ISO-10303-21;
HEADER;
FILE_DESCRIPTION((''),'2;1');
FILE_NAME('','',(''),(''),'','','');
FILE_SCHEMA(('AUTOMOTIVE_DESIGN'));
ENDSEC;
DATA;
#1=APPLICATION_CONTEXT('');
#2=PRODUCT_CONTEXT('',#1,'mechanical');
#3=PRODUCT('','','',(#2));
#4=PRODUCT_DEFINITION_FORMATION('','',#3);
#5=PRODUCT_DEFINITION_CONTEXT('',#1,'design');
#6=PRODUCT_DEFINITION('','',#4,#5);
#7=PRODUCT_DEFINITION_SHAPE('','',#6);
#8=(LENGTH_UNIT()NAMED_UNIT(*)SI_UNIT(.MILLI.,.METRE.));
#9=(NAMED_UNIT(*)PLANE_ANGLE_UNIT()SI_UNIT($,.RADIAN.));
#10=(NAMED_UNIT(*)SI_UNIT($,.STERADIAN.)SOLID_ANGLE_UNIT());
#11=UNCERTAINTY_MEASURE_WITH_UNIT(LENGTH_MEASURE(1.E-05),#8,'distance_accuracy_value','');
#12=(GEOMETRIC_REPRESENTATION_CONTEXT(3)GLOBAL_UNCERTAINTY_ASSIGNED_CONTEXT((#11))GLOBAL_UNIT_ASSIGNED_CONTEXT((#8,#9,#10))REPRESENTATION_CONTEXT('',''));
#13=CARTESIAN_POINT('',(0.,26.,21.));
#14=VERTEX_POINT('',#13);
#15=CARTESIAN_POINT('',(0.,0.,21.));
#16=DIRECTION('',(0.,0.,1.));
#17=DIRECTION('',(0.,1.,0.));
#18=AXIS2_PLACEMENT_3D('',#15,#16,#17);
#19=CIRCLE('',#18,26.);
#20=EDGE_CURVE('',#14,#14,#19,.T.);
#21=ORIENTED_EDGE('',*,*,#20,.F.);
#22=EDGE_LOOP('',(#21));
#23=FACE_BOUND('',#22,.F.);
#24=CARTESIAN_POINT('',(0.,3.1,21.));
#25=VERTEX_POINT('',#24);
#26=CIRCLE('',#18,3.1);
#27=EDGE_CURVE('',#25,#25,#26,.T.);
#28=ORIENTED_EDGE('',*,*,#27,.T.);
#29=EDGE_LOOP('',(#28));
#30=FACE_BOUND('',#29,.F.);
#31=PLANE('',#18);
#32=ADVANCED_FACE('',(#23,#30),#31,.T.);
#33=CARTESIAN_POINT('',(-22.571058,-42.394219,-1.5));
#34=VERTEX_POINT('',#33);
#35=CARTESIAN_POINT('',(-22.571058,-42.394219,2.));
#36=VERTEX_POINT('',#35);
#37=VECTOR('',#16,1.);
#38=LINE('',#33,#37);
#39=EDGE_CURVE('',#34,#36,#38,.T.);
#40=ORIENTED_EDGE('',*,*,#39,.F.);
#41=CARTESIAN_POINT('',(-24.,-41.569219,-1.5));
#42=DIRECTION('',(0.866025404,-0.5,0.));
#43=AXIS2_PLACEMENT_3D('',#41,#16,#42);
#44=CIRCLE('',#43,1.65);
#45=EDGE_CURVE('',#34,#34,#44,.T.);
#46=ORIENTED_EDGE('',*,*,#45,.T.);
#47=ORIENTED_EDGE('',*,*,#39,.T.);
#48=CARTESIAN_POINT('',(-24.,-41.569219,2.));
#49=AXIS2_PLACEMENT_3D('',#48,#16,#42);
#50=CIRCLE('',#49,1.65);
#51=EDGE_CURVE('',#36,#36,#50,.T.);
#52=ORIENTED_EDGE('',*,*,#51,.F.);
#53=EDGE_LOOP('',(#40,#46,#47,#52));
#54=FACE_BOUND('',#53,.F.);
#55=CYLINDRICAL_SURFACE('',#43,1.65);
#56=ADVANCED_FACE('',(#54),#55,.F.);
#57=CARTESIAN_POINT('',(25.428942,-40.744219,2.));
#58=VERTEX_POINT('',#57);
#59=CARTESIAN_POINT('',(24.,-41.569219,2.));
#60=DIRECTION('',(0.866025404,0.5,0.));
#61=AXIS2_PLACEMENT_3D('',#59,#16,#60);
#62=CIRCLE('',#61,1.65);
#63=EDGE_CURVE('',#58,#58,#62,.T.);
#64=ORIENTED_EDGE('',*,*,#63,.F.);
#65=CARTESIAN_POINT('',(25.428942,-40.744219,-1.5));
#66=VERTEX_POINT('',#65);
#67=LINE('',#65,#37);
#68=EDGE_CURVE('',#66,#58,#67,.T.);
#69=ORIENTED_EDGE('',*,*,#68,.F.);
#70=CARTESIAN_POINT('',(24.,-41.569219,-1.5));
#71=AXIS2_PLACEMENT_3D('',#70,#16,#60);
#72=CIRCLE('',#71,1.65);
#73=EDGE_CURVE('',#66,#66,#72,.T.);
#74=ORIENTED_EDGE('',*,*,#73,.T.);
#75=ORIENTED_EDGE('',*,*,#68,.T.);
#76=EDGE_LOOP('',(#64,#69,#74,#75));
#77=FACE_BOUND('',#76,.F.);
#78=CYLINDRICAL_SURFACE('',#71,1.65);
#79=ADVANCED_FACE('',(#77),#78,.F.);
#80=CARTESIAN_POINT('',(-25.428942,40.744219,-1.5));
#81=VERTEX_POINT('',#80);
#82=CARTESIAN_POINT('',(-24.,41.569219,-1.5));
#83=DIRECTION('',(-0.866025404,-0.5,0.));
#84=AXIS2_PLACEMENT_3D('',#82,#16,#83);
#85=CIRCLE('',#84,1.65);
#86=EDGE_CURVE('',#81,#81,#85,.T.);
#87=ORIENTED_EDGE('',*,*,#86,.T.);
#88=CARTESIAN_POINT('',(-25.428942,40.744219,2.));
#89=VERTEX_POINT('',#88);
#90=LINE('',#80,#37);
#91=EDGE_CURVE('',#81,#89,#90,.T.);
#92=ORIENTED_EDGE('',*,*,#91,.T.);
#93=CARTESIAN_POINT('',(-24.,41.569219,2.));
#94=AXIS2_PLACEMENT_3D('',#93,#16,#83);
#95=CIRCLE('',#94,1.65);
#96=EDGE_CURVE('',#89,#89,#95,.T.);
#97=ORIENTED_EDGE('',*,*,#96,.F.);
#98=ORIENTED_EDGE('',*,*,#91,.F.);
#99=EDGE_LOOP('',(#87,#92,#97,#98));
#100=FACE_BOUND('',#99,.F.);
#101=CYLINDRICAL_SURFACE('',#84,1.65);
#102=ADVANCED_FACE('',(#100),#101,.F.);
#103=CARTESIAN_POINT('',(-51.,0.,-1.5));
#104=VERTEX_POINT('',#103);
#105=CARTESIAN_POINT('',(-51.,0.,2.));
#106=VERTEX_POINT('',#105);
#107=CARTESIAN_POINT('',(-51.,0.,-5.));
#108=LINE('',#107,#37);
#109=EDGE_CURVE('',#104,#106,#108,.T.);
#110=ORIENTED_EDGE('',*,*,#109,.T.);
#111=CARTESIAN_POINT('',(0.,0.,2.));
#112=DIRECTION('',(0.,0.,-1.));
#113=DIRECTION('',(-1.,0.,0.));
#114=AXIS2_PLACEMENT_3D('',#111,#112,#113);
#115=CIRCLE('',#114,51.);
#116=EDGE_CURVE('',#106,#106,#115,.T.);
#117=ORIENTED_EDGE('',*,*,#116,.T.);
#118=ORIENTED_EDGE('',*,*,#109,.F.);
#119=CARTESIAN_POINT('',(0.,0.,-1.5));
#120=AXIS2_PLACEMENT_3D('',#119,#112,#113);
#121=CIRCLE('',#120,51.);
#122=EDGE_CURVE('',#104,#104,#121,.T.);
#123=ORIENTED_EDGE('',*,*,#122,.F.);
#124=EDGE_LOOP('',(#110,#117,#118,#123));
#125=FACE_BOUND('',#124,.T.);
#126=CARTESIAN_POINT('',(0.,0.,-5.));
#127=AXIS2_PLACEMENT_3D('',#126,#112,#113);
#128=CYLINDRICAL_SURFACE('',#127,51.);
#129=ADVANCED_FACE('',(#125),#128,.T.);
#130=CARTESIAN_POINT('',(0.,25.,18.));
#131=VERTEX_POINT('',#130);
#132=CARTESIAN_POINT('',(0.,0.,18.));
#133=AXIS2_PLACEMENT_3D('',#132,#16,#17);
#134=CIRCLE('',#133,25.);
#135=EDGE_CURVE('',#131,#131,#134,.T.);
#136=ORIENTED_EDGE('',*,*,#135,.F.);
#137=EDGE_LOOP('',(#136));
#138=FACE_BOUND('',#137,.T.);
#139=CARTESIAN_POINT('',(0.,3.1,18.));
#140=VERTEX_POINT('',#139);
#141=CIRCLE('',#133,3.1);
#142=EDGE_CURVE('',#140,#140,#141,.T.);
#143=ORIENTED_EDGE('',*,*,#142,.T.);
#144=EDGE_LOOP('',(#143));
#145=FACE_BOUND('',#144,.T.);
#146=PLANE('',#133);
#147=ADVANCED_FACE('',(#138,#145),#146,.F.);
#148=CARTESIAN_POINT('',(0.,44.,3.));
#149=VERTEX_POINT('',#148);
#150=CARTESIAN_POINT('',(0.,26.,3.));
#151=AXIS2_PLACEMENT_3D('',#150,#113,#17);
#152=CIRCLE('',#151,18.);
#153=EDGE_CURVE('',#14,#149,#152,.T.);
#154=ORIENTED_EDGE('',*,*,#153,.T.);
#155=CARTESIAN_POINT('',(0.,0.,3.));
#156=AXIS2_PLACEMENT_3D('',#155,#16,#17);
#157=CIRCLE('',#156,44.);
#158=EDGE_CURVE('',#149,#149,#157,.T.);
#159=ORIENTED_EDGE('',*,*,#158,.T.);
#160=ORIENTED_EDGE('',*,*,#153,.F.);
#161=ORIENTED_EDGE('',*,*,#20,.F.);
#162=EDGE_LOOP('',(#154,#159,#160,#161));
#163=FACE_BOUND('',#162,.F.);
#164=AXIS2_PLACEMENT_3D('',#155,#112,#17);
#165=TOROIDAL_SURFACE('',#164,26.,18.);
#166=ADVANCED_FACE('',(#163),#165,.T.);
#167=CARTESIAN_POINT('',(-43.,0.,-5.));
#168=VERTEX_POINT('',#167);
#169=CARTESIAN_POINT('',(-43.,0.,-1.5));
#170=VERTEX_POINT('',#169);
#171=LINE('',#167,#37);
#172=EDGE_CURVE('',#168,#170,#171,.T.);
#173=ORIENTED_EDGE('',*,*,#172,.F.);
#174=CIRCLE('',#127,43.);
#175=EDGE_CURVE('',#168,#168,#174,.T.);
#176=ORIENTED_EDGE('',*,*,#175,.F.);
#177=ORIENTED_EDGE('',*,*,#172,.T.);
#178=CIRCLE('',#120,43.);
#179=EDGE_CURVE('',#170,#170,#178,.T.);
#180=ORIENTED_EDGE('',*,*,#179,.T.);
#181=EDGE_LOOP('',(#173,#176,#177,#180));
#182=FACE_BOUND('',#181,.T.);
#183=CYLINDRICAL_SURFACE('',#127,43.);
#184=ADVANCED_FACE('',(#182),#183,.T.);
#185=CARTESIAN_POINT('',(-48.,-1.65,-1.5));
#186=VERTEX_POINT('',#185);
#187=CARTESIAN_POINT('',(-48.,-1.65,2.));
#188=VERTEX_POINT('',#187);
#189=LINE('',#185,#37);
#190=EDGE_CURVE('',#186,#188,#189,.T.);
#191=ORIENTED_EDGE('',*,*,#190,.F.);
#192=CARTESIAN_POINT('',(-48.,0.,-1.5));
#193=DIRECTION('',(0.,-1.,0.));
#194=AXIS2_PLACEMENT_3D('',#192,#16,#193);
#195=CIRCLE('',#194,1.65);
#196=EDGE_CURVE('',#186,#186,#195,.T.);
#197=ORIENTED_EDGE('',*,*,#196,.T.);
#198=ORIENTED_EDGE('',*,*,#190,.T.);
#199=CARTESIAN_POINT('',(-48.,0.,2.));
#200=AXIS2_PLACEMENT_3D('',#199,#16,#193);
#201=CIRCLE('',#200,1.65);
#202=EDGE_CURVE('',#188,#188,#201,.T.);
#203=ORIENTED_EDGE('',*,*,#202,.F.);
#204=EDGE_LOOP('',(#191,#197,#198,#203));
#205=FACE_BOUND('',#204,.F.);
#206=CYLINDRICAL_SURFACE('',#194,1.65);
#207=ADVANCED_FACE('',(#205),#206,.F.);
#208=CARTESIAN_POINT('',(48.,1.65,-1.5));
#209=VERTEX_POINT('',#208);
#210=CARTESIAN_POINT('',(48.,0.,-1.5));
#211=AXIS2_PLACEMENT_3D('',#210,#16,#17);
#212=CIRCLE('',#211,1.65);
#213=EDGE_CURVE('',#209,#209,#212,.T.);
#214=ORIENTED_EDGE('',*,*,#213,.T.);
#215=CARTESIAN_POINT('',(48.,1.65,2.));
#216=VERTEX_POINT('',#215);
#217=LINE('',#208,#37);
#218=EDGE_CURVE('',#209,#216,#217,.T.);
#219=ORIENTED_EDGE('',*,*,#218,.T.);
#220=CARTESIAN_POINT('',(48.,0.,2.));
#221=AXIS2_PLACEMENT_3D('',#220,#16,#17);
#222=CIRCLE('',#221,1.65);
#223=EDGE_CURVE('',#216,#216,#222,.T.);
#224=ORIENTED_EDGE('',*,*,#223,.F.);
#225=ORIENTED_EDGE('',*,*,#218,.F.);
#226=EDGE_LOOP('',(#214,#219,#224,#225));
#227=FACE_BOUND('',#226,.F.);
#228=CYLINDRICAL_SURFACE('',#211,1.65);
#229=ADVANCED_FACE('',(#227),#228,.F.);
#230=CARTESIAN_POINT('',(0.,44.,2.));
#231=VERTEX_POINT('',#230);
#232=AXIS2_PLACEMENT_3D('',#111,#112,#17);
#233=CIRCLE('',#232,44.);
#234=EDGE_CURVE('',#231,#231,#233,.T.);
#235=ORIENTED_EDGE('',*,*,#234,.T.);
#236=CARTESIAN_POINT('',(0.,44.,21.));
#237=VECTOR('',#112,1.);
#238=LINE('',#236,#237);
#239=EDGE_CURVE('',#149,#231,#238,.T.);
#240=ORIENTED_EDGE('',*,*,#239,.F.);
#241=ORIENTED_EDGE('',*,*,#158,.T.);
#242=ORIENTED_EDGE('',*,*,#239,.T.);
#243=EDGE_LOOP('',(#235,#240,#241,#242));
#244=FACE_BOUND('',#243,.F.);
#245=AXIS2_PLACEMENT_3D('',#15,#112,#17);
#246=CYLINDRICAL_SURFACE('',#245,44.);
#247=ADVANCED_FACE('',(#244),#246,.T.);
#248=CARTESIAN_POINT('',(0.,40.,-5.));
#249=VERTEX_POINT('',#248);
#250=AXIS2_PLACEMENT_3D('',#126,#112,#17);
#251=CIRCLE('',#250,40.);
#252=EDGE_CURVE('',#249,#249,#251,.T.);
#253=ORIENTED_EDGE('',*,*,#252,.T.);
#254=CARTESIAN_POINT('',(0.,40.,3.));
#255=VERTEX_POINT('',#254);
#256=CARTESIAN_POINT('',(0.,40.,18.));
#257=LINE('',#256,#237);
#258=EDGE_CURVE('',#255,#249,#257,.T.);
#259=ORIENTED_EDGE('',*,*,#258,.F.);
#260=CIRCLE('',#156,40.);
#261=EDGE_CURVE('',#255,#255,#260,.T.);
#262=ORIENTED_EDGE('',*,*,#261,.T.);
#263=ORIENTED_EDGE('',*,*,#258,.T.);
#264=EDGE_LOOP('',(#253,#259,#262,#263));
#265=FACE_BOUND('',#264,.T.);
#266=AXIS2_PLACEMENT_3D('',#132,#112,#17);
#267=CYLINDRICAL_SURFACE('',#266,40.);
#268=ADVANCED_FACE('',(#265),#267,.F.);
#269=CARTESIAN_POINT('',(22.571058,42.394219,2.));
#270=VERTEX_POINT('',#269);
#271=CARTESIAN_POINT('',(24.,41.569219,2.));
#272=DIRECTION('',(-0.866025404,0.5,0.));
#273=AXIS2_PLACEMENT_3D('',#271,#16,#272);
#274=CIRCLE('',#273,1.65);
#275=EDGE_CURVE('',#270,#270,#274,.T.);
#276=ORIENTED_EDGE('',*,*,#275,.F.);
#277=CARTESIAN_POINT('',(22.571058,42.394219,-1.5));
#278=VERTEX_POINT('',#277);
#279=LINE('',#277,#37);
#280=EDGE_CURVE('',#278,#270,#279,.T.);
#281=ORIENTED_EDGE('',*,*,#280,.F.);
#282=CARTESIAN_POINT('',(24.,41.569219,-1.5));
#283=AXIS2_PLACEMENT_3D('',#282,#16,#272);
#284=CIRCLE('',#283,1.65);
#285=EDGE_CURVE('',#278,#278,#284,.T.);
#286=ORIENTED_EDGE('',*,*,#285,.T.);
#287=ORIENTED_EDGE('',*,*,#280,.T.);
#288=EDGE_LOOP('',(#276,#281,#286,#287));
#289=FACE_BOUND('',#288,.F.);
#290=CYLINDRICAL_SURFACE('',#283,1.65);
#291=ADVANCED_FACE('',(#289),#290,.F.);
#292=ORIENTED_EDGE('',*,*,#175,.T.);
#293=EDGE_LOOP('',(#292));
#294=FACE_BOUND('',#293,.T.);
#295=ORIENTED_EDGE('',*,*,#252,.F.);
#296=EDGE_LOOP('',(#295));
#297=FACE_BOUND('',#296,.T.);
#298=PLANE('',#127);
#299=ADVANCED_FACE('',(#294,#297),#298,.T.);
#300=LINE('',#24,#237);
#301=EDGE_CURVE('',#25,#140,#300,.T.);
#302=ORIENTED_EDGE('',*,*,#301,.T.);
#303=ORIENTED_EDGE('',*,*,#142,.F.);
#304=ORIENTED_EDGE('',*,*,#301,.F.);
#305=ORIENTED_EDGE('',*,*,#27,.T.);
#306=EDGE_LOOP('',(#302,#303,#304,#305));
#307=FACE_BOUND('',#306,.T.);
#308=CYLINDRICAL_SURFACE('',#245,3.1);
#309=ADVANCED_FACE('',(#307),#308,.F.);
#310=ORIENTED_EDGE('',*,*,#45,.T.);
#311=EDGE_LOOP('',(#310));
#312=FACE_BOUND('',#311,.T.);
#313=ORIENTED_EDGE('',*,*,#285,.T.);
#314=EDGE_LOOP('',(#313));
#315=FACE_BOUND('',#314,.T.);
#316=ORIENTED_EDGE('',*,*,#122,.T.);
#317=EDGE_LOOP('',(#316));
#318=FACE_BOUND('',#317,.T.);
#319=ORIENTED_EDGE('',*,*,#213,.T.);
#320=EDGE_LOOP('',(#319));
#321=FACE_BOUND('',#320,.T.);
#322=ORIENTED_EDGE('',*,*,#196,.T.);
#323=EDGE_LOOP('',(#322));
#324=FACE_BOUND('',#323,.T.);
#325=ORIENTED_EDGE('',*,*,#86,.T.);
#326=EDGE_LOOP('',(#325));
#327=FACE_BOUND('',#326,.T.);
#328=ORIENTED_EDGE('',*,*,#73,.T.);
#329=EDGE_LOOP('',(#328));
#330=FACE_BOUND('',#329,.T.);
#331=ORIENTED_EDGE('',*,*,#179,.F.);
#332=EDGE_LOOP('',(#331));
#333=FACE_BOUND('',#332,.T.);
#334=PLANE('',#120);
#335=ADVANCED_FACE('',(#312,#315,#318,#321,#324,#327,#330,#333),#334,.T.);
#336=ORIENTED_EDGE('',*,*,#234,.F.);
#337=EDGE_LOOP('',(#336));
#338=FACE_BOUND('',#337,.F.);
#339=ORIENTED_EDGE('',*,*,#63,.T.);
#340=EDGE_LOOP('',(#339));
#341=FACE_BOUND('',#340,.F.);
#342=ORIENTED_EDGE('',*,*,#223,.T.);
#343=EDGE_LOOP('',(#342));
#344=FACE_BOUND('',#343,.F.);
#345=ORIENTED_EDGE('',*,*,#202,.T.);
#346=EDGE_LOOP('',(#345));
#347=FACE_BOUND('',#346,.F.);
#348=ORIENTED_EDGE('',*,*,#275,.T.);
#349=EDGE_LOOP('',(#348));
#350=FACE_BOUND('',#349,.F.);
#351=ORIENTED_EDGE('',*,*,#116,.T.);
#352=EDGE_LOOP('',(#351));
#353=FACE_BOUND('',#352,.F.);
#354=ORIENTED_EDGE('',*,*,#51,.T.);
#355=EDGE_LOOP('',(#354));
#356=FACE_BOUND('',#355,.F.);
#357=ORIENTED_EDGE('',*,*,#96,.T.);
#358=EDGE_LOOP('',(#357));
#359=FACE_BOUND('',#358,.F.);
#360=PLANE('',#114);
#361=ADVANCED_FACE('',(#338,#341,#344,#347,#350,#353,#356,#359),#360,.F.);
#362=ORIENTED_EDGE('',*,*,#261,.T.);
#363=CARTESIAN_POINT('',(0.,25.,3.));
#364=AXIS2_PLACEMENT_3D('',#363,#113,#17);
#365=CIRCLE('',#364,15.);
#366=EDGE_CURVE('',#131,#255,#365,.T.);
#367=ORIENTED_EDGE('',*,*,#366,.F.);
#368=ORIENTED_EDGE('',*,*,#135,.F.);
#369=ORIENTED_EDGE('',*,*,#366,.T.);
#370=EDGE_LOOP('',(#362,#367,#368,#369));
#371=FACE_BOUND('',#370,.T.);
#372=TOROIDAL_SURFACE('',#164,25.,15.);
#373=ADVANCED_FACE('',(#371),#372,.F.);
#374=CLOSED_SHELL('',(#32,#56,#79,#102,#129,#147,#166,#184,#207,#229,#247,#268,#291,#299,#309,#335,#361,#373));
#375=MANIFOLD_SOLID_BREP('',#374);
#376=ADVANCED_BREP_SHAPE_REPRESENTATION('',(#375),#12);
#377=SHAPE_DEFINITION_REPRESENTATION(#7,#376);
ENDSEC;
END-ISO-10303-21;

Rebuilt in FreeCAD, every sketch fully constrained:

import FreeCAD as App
import Part
import Sketcher
Q = App.Units.Quantity


def edges_at(feature, points):
    """Names of the edges that pass closest to the given points."""
    edges = feature.Shape.Edges
    near = lambda p: min(range(len(edges)), key=lambda i: edges[i].distToShape(Part.Vertex(*p))[0])
    return sorted({f"Edge{near(p) + 1}" for p in points})

doc = App.newDocument("Part")
params = doc.addObject("Spreadsheet::Sheet", "Params")
for row, (alias, value) in enumerate([
    ("sketch1_width", "4 mm"),
    ("sketch1_height", "3 mm"),
    ("sketch1_width2", "40.9 mm"),
    ("revolution_angle", "360 deg"),
    ("sketch2_diameter", "102 mm"),
    ("sketch2_diameter2", "80 mm"),
    ("pad1_length", "7 mm"),
    ("sketch3_diameter", "86 mm"),
    ("sketch3_diameter2", "102 mm"),
    ("pocket1_length", "3.5 mm"),
    ("sketch4_diameter", "3.3 mm"),
    ("hole_diameter", "3.3 mm"),
    ("fillet_radius", "15 mm"),
    ("fillet2_radius", "18 mm"),
], start=1):
    params.set(f"A{row}", alias)
    params.set(f"B{row}", "=" + value)
    params.setAlias(f"B{row}", alias)

body = doc.addObject("PartDesign::Body", "Body")

# Sketch on YZ plane
sketch1 = doc.addObject("Sketcher::SketchObject", "Sketch")
body.addObject(sketch1)
sketch1.AttachmentSupport = (doc.YZ_Plane, [""])
sketch1.MapMode = "FlatFace"
sketch1.addGeometry([
    Part.LineSegment(App.Vector(44, 21, 0), App.Vector(3.1, 21, 0)),  # 0
    Part.LineSegment(App.Vector(3.1, 21, 0), App.Vector(3.1, 18, 0)),  # 1
    Part.LineSegment(App.Vector(3.1, 18, 0), App.Vector(40, 18, 0)),  # 2
    Part.LineSegment(App.Vector(40, 18, 0), App.Vector(40, -5, 0)),  # 3
    Part.LineSegment(App.Vector(40, -5, 0), App.Vector(44, -5, 0)),  # 4
    Part.LineSegment(App.Vector(44, -5, 0), App.Vector(44, 21, 0)),  # 5
], False)
sketch1.addConstraint([
    Sketcher.Constraint("Coincident", 0, 2, 1, 1),
    Sketcher.Constraint("Coincident", 1, 2, 2, 1),
    Sketcher.Constraint("Coincident", 2, 2, 3, 1),
    Sketcher.Constraint("Coincident", 3, 2, 4, 1),
    Sketcher.Constraint("Coincident", 4, 2, 5, 1),
    Sketcher.Constraint("Coincident", 5, 2, 0, 1),
    Sketcher.Constraint("Horizontal", 0),
    Sketcher.Constraint("Vertical", 1),
    Sketcher.Constraint("Horizontal", 2),
    Sketcher.Constraint("Vertical", 3),
    Sketcher.Constraint("Horizontal", 4),
    Sketcher.Constraint("Vertical", 5),
    Sketcher.Constraint("DistanceX", 4, 1, 4, 2, Q("4 mm")),
    Sketcher.Constraint("DistanceY", 1, 2, 1, 1, Q("3 mm")),
    Sketcher.Constraint("DistanceY", -1, 1, 1, 2, Q("18 mm")),
    Sketcher.Constraint("DistanceY", 3, 2, -1, 1, Q("5 mm")),
    Sketcher.Constraint("DistanceX", 0, 2, 0, 1, Q("40.9 mm")),
    Sketcher.Constraint("DistanceX", -1, 1, 2, 2, Q("40 mm")),
])
sketch1.setExpression("Constraints[12]", "Params.sketch1_width")
sketch1.setExpression("Constraints[13]", "Params.sketch1_height")
sketch1.setExpression("Constraints[16]", "Params.sketch1_width2")
revolution = doc.addObject("PartDesign::Revolution", "Revolution")
body.addObject(revolution)
revolution.Profile = sketch1
revolution.ReferenceAxis = (sketch1, ["V_Axis"])
revolution.setExpression("Angle", "Params.revolution_angle")

# Sketch on XY plane
sketch2 = doc.addObject("Sketcher::SketchObject", "Sketch001")
body.addObject(sketch2)
sketch2.AttachmentSupport = (doc.XY_Plane, [""])
sketch2.MapMode = "FlatFace"
sketch2.AttachmentOffset = App.Placement(App.Vector(0, 0, -5), App.Rotation())
sketch2.addGeometry([
    Part.Circle(App.Vector(0, 0, 0), App.Vector(0, 0, 1), 51),
    Part.Circle(App.Vector(0, 0, 0), App.Vector(0, 0, 1), 40),
], False)
sketch2.addConstraint([
    Sketcher.Constraint("Coincident", 0, 3, -1, 1),
    Sketcher.Constraint("Coincident", 1, 3, -1, 1),
    Sketcher.Constraint("Diameter", 0, Q("102 mm")),
    Sketcher.Constraint("Diameter", 1, Q("80 mm")),
])
sketch2.setExpression("Constraints[2]", "Params.sketch2_diameter")
sketch2.setExpression("Constraints[3]", "Params.sketch2_diameter2")
pad1 = doc.addObject("PartDesign::Pad", "Pad")
body.addObject(pad1)
pad1.Profile = sketch2
pad1.setExpression("Length", "Params.pad1_length")

# Sketch on XY plane
sketch3 = doc.addObject("Sketcher::SketchObject", "Sketch002")
body.addObject(sketch3)
sketch3.AttachmentSupport = (doc.XY_Plane, [""])
sketch3.MapMode = "FlatFace"
sketch3.AttachmentOffset = App.Placement(App.Vector(0, 0, -5), App.Rotation())
sketch3.addGeometry([
    Part.Circle(App.Vector(0, 0, 0), App.Vector(0, 0, 1), 51),
    Part.Circle(App.Vector(0, 0, 0), App.Vector(0, 0, 1), 43),
], False)
sketch3.addConstraint([
    Sketcher.Constraint("Coincident", 0, 3, -1, 1),
    Sketcher.Constraint("Coincident", 1, 3, -1, 1),
    Sketcher.Constraint("Diameter", 1, Q("86 mm")),
    Sketcher.Constraint("Diameter", 0, Q("102 mm")),
])
sketch3.setExpression("Constraints[2]", "Params.sketch3_diameter")
sketch3.setExpression("Constraints[3]", "Params.sketch3_diameter2")
pocket1 = doc.addObject("PartDesign::Pocket", "Pocket")
body.addObject(pocket1)
pocket1.Profile = sketch3
pocket1.setExpression("Length", "Params.pocket1_length")
pocket1.Reversed = True

# Sketch on XY plane
sketch4 = doc.addObject("Sketcher::SketchObject", "Sketch003")
body.addObject(sketch4)
sketch4.AttachmentSupport = (doc.XY_Plane, [""])
sketch4.MapMode = "FlatFace"
sketch4.AttachmentOffset = App.Placement(App.Vector(0, 0, -1.5), App.Rotation())
sketch4.addGeometry(Part.Circle(App.Vector(48, 0, 0), App.Vector(0, 0, 1), 1.6), False)
sketch4.addConstraint([
    Sketcher.Constraint("PointOnObject", 0, 3, -1),
    Sketcher.Constraint("Diameter", 0, Q("3.3 mm")),
    Sketcher.Constraint("DistanceX", -1, 1, 0, 3, Q("48 mm")),
])
sketch4.setExpression("Constraints[1]", "Params.sketch4_diameter")
doc.recompute()
hole = doc.addObject("PartDesign::Hole", "Hole")
body.addObject(hole)
hole.Profile = sketch4
hole.ThreadType = "None"
hole.setExpression("Diameter", "Params.hole_diameter")
hole.DepthType = "ThroughAll"
hole.Reversed = True
doc.recompute()

polarpattern = doc.addObject("PartDesign::PolarPattern", "PolarPattern")
body.addObject(polarpattern)
polarpattern.Originals = [hole]
polarpattern.Axis = (doc.Z_Axis, [""])
polarpattern.Angle = 360
polarpattern.Occurrences = 6
body.Tip = polarpattern
doc.recompute()

fillet = doc.addObject("PartDesign::Fillet", "Fillet")
body.addObject(fillet)
fillet.Base = (polarpattern, edges_at(polarpattern, [(0, -40, 18)]))
fillet.setExpression("Radius", "Params.fillet_radius")
doc.recompute()

fillet2 = doc.addObject("PartDesign::Fillet", "Fillet001")
body.addObject(fillet2)
fillet2.Base = (fillet, edges_at(fillet, [(0, -44, 21)]))
fillet2.setExpression("Radius", "Params.fillet2_radius")

doc.recompute()
